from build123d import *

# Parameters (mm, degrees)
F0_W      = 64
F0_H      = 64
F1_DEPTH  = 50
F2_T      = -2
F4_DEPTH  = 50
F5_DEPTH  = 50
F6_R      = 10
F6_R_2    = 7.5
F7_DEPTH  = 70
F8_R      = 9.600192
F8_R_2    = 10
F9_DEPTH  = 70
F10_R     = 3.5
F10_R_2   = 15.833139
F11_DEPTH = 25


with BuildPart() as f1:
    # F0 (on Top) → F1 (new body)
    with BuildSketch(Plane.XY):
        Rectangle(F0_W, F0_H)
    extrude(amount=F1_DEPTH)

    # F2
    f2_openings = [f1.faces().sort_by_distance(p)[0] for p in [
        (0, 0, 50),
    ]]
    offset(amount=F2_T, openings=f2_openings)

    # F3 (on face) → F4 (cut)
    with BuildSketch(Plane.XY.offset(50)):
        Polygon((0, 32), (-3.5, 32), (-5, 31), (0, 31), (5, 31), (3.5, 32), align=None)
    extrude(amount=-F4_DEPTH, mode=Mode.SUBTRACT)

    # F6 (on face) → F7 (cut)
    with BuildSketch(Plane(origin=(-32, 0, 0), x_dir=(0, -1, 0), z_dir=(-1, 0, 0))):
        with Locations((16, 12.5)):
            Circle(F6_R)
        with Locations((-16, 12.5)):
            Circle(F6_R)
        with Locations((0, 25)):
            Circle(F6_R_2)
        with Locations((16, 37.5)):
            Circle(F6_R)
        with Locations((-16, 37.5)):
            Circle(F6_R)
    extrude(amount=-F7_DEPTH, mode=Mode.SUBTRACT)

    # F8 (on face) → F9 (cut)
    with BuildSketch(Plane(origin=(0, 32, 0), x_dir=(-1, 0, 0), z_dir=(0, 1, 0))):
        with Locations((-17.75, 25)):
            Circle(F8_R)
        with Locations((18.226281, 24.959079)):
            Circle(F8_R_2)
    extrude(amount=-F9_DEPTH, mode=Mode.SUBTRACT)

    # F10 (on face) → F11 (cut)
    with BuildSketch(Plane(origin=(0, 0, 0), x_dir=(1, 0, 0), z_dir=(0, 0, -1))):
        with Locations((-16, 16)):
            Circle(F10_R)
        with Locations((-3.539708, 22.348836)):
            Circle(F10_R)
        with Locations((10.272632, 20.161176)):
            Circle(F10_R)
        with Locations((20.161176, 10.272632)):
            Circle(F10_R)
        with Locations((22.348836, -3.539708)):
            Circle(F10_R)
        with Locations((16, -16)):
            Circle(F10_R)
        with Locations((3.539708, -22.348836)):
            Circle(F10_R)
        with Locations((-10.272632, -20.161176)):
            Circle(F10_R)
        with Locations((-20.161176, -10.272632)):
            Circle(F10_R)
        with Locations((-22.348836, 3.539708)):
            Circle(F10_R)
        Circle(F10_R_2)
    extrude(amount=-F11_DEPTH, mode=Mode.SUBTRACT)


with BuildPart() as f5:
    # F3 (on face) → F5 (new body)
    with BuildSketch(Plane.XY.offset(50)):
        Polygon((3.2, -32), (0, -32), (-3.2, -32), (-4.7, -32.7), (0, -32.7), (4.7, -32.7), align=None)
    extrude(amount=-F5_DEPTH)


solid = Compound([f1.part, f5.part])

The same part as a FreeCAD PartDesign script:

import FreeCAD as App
import Part
import Sketcher

V = App.Vector


def faces_at(feature, points):
    """Names of the faces that lie closest to the given points."""
    faces = feature.Shape.Faces
    near = lambda p: min(range(len(faces)), key=lambda i: faces[i].distToShape(Part.Vertex(*p))[0])
    return sorted({f"Face{near(p) + 1}" for p in points})

doc = App.newDocument("Part")
body = doc.addObject("PartDesign::Body", "Body")

# Sketch on XY plane
sketch1 = body.newObject("Sketcher::SketchObject", "Sketch")
sketch1.AttachmentSupport = (doc.getObject("XY_Plane"), [""])
sketch1.MapMode = "FlatFace"
sketch1.addGeometry(Part.LineSegment(V(-32, 32, 0), V(-32, -32, 0)), False)
sketch1.addGeometry(Part.LineSegment(V(-32, -32, 0), V(32, -32, 0)), False)
sketch1.addGeometry(Part.LineSegment(V(32, -32, 0), V(32, 32, 0)), False)
sketch1.addGeometry(Part.LineSegment(V(32, 32, 0), V(-32, 32, 0)), False)
sketch1.addConstraint(Sketcher.Constraint("Coincident", 0, 2, 1, 1))
sketch1.addConstraint(Sketcher.Constraint("Coincident", 1, 2, 2, 1))
sketch1.addConstraint(Sketcher.Constraint("Coincident", 2, 2, 3, 1))
sketch1.addConstraint(Sketcher.Constraint("Coincident", 3, 2, 0, 1))
sketch1.addConstraint(Sketcher.Constraint("Vertical", 0))
sketch1.addConstraint(Sketcher.Constraint("Horizontal", 1))
sketch1.addConstraint(Sketcher.Constraint("Vertical", 2))
sketch1.addConstraint(Sketcher.Constraint("Horizontal", 3))
sketch1.addConstraint(Sketcher.Constraint("Symmetric", 0, 2, 2, 2, -1, 1))
sketch1.addConstraint(Sketcher.Constraint("Equal", 3, 0))
sketch1.addConstraint(Sketcher.Constraint("DistanceX", 1, 1, 1, 2, 64.0))
pad1 = body.newObject("PartDesign::Pad", "Pad")
pad1.Profile = sketch1
pad1.Length = 50
doc.recompute()

thickness = body.newObject("PartDesign::Thickness", "Thickness")
thickness.Base = (pad1, faces_at(pad1, [(0, 0, 50)]))
thickness.Value = 2
thickness.Reversed = True
thickness.Join = "Arc"

# Sketch on XY plane
sketch2 = body.newObject("Sketcher::SketchObject", "Sketch001")
sketch2.AttachmentSupport = (doc.getObject("XY_Plane"), [""])
sketch2.MapMode = "FlatFace"
sketch2.AttachmentOffset = App.Placement(V(0, 0, 50), App.Rotation())
sketch2.addGeometry(Part.LineSegment(V(-3.5, 32, 0), V(-5, 31, 0)), False)
sketch2.addGeometry(Part.LineSegment(V(-5, 31, 0), V(5, 31, 0)), False)
sketch2.addGeometry(Part.LineSegment(V(5, 31, 0), V(3.5, 32, 0)), False)
sketch2.addGeometry(Part.LineSegment(V(3.5, 32, 0), V(-3.5, 32, 0)), False)
sketch2.addConstraint(Sketcher.Constraint("Coincident", 0, 2, 1, 1))
sketch2.addConstraint(Sketcher.Constraint("Coincident", 1, 2, 2, 1))
sketch2.addConstraint(Sketcher.Constraint("Coincident", 2, 2, 3, 1))
sketch2.addConstraint(Sketcher.Constraint("Coincident", 3, 2, 0, 1))
sketch2.addConstraint(Sketcher.Constraint("Horizontal", 1))
sketch2.addConstraint(Sketcher.Constraint("Horizontal", 3))
sketch2.addConstraint(Sketcher.Constraint("Equal", 0, 2))
sketch2.addConstraint(Sketcher.Constraint("DistanceX", 1, 1, 1, 2, 10.0))
sketch2.addConstraint(Sketcher.Constraint("DistanceX", 3, 2, 3, 1, 7.0))
sketch2.addConstraint(Sketcher.Constraint("DistanceX", 0, 2, -1, 1, 5.0))
sketch2.addConstraint(Sketcher.Constraint("DistanceY", -1, 1, 0, 2, 31.0))
sketch2.addConstraint(Sketcher.Constraint("DistanceY", -1, 1, 2, 2, 32.0))
pocket1 = body.newObject("PartDesign::Pocket", "Pocket")
pocket1.Profile = sketch2
pocket1.Length = 50

# Sketch on YZ plane
sketch3 = body.newObject("Sketcher::SketchObject", "Sketch002")
sketch3.AttachmentSupport = (doc.getObject("YZ_Plane"), [""])
sketch3.MapMode = "FlatFace"
sketch3.AttachmentOffset = App.Placement(V(0, 0, -32), App.Rotation())
sketch3.addGeometry(Part.Circle(V(-16, 12, 0), V(0, 0, 1), 10), False)
sketch3.addGeometry(Part.Circle(V(16, 12, 0), V(0, 0, 1), 10), False)
sketch3.addGeometry(Part.Circle(V(0, 25, 0), V(0, 0, 1), 8), False)
sketch3.addGeometry(Part.Circle(V(-16, 38, 0), V(0, 0, 1), 10), False)
sketch3.addGeometry(Part.Circle(V(16, 38, 0), V(0, 0, 1), 10), False)
sketch3.addConstraint(Sketcher.Constraint("Equal", 0, 1))
sketch3.addConstraint(Sketcher.Constraint("Equal", 1, 3))
sketch3.addConstraint(Sketcher.Constraint("Equal", 3, 4))
sketch3.addConstraint(Sketcher.Constraint("Symmetric", 0, 3, 1, 3, -2))
sketch3.addConstraint(Sketcher.Constraint("Symmetric", 3, 3, 4, 3, -2))
sketch3.addConstraint(Sketcher.Constraint("PointOnObject", 2, 3, -2))
sketch3.addConstraint(Sketcher.Constraint("Vertical", 0, 3, 3, 3))
sketch3.addConstraint(Sketcher.Constraint("Diameter", 0, 20.0))
sketch3.addConstraint(Sketcher.Constraint("Diameter", 2, 15.0))
sketch3.addConstraint(Sketcher.Constraint("DistanceX", 0, 3, -1, 1, 16.0))
sketch3.addConstraint(Sketcher.Constraint("DistanceY", -1, 1, 2, 3, 25.0))
sketch3.addConstraint(Sketcher.Constraint("DistanceY", 0, 3, 3, 3, 25.0))
sketch3.addConstraint(Sketcher.Constraint("DistanceY", -1, 1, 0, 3, 12.5))
pocket2 = body.newObject("PartDesign::Pocket", "Pocket001")
pocket2.Profile = sketch3
pocket2.Length = 70
pocket2.Reversed = True

# Sketch on XZ plane
sketch4 = body.newObject("Sketcher::SketchObject", "Sketch003")
sketch4.AttachmentSupport = (doc.getObject("XZ_Plane"), [""])
sketch4.MapMode = "FlatFace"
sketch4.AttachmentOffset = App.Placement(V(0, 0, -32), App.Rotation())
sketch4.addGeometry(Part.Circle(V(18, 25, 0), V(0, 0, 1), 10), False)
sketch4.addGeometry(Part.Circle(V(-18, 25, 0), V(0, 0, 1), 10), False)
sketch4.addConstraint(Sketcher.Constraint("Diameter", 1, 20.0))
sketch4.addConstraint(Sketcher.Constraint("DistanceY", -1, 1, 0, 3, 25.0))
sketch4.addConstraint(Sketcher.Constraint("DistanceX", -1, 1, 0, 3, 17.75))
sketch4.addConstraint(Sketcher.Constraint("Diameter", 0, 19.200384))
sketch4.addConstraint(Sketcher.Constraint("DistanceX", 1, 3, -1, 1, 18.226281))
sketch4.addConstraint(Sketcher.Constraint("DistanceY", -1, 1, 1, 3, 24.959079))
pocket3 = body.newObject("PartDesign::Pocket", "Pocket002")
pocket3.Profile = sketch4
pocket3.Length = 70
pocket3.Reversed = True

# Sketch on XY plane
sketch5 = body.newObject("Sketcher::SketchObject", "Sketch004")
sketch5.AttachmentSupport = (doc.getObject("XY_Plane"), [""])
sketch5.MapMode = "FlatFace"
sketch5.addGeometry(Part.Circle(V(-16, -16, 0), V(0, 0, 1), 3.5), False)
sketch5.addGeometry(Part.Circle(V(-3.5, -22.3, 0), V(0, 0, 1), 3.5), False)
sketch5.addGeometry(Part.Circle(V(10.3, -20.2, 0), V(0, 0, 1), 3.5), False)
sketch5.addGeometry(Part.Circle(V(20.2, -10.3, 0), V(0, 0, 1), 3.5), False)
sketch5.addGeometry(Part.Circle(V(22.3, 3.5, 0), V(0, 0, 1), 3.5), False)
sketch5.addGeometry(Part.Circle(V(16, 16, 0), V(0, 0, 1), 3.5), False)
sketch5.addGeometry(Part.Circle(V(3.5, 22.3, 0), V(0, 0, 1), 3.5), False)
sketch5.addGeometry(Part.Circle(V(-10.3, 20.2, 0), V(0, 0, 1), 3.5), False)
sketch5.addGeometry(Part.Circle(V(-20.2, 10.3, 0), V(0, 0, 1), 3.5), False)
sketch5.addGeometry(Part.Circle(V(-22.3, -3.5, 0), V(0, 0, 1), 3.5), False)
sketch5.addGeometry(Part.Circle(V(0, 0, 0), V(0, 0, 1), 15.8), False)
sketch5.addConstraint(Sketcher.Constraint("Coincident", 10, 3, -1, 1))
sketch5.addConstraint(Sketcher.Constraint("Equal", 0, 1))
sketch5.addConstraint(Sketcher.Constraint("Equal", 1, 2))
sketch5.addConstraint(Sketcher.Constraint("Equal", 2, 3))
sketch5.addConstraint(Sketcher.Constraint("Equal", 3, 4))
sketch5.addConstraint(Sketcher.Constraint("Equal", 4, 5))
sketch5.addConstraint(Sketcher.Constraint("Equal", 5, 6))
sketch5.addConstraint(Sketcher.Constraint("Equal", 6, 7))
sketch5.addConstraint(Sketcher.Constraint("Equal", 7, 8))
sketch5.addConstraint(Sketcher.Constraint("Equal", 8, 9))
sketch5.addConstraint(Sketcher.Constraint("Symmetric", 0, 3, 5, 3, -1, 1))
sketch5.addConstraint(Sketcher.Constraint("Symmetric", 1, 3, 6, 3, -1, 1))
sketch5.addConstraint(Sketcher.Constraint("Symmetric", 2, 3, 7, 3, -1, 1))
sketch5.addConstraint(Sketcher.Constraint("Symmetric", 3, 3, 8, 3, -1, 1))
sketch5.addConstraint(Sketcher.Constraint("Symmetric", 4, 3, 9, 3, -1, 1))
sketch5.addConstraint(Sketcher.Constraint("Diameter", 0, 7.0))
sketch5.addConstraint(Sketcher.Constraint("DistanceX", 0, 3, -1, 1, 16.0))
sketch5.addConstraint(Sketcher.Constraint("DistanceY", 0, 3, -1, 1, 16.0))
sketch5.addConstraint(Sketcher.Constraint("Diameter", 10, 31.666278))
sketch5.addConstraint(Sketcher.Constraint("DistanceX", 1, 3, -1, 1, 3.539708))
sketch5.addConstraint(Sketcher.Constraint("DistanceY", -1, 1, 4, 3, 3.539708))
sketch5.addConstraint(Sketcher.Constraint("DistanceX", 1, 3, 2, 3, 13.81234))
sketch5.addConstraint(Sketcher.Constraint("DistanceY", 1, 3, 2, 3, 2.18766))
sketch5.addConstraint(Sketcher.Constraint("DistanceY", 0, 3, 3, 3, 5.727368))
sketch5.addConstraint(Sketcher.Constraint("DistanceX", 3, 3, 4, 3, 2.18766))
sketch5.addConstraint(Sketcher.Constraint("DistanceX", 6, 3, 3, 3, 16.621468))
sketch5.addConstraint(Sketcher.Constraint("DistanceY", 4, 3, 7, 3, 16.621468))
pocket4 = body.newObject("PartDesign::Pocket", "Pocket003")
pocket4.Profile = sketch5
pocket4.Length = 25
pocket4.Reversed = True
body2 = doc.addObject("PartDesign::Body", "Body001")

# Sketch on XY plane
sketch6 = body2.newObject("Sketcher::SketchObject", "Sketch005")
sketch6.AttachmentSupport = (doc.getObject("XY_Plane001"), [""])
sketch6.MapMode = "FlatFace"
sketch6.AttachmentOffset = App.Placement(V(0, 0, 50), App.Rotation())
sketch6.addGeometry(Part.LineSegment(V(3.2, -32, 0), V(-3.2, -32, 0)), False)
sketch6.addGeometry(Part.LineSegment(V(-3.2, -32, 0), V(-4.7, -32.7, 0)), False)
sketch6.addGeometry(Part.LineSegment(V(-4.7, -32.7, 0), V(4.7, -32.7, 0)), False)
sketch6.addGeometry(Part.LineSegment(V(4.7, -32.7, 0), V(3.2, -32, 0)), False)
sketch6.addConstraint(Sketcher.Constraint("Coincident", 0, 2, 1, 1))
sketch6.addConstraint(Sketcher.Constraint("Coincident", 1, 2, 2, 1))
sketch6.addConstraint(Sketcher.Constraint("Coincident", 2, 2, 3, 1))
sketch6.addConstraint(Sketcher.Constraint("Coincident", 3, 2, 0, 1))
sketch6.addConstraint(Sketcher.Constraint("Horizontal", 0))
sketch6.addConstraint(Sketcher.Constraint("Horizontal", 2))
sketch6.addConstraint(Sketcher.Constraint("Equal", 1, 3))
sketch6.addConstraint(Sketcher.Constraint("DistanceX", 0, 2, 0, 1, 6.4))
sketch6.addConstraint(Sketcher.Constraint("DistanceX", 2, 1, 2, 2, 9.4))
sketch6.addConstraint(Sketcher.Constraint("DistanceY", 0, 2, -1, 1, 32.0))
sketch6.addConstraint(Sketcher.Constraint("DistanceX", 0, 2, -1, 1, 3.2))
sketch6.addConstraint(Sketcher.Constraint("DistanceY", 1, 2, -1, 1, 32.7))
pad2 = body2.newObject("PartDesign::Pad", "Pad001")
pad2.Profile = sketch6
pad2.Length = 50
pad2.Reversed = True

doc.recompute()
